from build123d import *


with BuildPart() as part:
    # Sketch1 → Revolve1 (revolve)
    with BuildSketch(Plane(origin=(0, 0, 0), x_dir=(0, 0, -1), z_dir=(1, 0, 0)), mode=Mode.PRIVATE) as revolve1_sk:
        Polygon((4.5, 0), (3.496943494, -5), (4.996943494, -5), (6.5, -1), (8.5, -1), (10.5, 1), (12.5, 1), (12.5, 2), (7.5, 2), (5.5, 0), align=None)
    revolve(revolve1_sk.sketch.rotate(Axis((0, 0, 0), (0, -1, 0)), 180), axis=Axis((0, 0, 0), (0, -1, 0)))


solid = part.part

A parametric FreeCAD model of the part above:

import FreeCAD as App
import Part
import Sketcher
Q = App.Units.Quantity


def add_polygon(sketch, points):
    """Adds a closed chain of lines whose ends are joined by coincident constraints."""
    first, n = sketch.GeometryCount, len(points)
    for a, b in zip(points, points[1:] + points[:1]):
        sketch.addGeometry(Part.LineSegment(App.Vector(*a, 0), App.Vector(*b, 0)), False)
    for i in range(n):
        sketch.addConstraint(Sketcher.Constraint("Coincident", first + i, 2, first + (i + 1) % n, 1))

doc = App.newDocument("Part")
body = doc.addObject("PartDesign::Body", "Body")

# Sketch on YZ plane
sketch1 = body.newObject("Sketcher::SketchObject", "Sketch")
sketch1.AttachmentSupport = (doc.getObject("YZ_Plane"), [""])
sketch1.MapMode = "FlatFace"
add_polygon(sketch1, [(0, -4.5), (-5, -3.496943), (-5, -4.996943), (-1, -6.5), (-1, -8.5), (1, -10.5), (1, -12.5), (2, -12.5), (2, -7.5), (0, -5.5)])  # lines 0-9
sketch1.addConstraint([
    Sketcher.Constraint("Vertical", 1),
    Sketcher.Constraint("Vertical", 3),
    Sketcher.Constraint("Vertical", 5),
    Sketcher.Constraint("Horizontal", 6),
    Sketcher.Constraint("Vertical", 7),
    Sketcher.Constraint("Vertical", 9),
    Sketcher.Constraint("PointOnObject", 8, 2, -2),
    Sketcher.Constraint("Parallel", 4, 8),
    Sketcher.Constraint("Equal", 3, 5),
    Sketcher.Constraint("Equal", 6, 9),
    Sketcher.Constraint("Equal", 4, 8),
    Sketcher.Constraint("DistanceX", 6, 1, 6, 2, Q("1 mm")),
    Sketcher.Constraint("DistanceY", 3, 2, 3, 1, Q("2 mm")),
    Sketcher.Constraint("DistanceY", 7, 1, 7, 2, Q("5 mm")),
    Sketcher.Constraint("Angle", 4, Q("-45 deg")),
    Sketcher.Constraint("DistanceY", 1, 2, 1, 1, Q("1.5 mm")),
    Sketcher.Constraint("DistanceX", 0, 2, -1, 1, Q("5 mm")),
    Sketcher.Constraint("DistanceX", -1, 1, 4, 2, Q("1 mm")),
    Sketcher.Constraint("DistanceY", 2, 2, -1, 1, Q("6.5 mm")),
    Sketcher.Constraint("Distance", 0, Q("5.09962 mm")),
])
revolution = body.newObject("PartDesign::Revolution", "Revolution")
revolution.Profile = sketch1
revolution.ReferenceAxis = (sketch1, ["H_Axis"])
revolution.Angle = 360

doc.recompute()
